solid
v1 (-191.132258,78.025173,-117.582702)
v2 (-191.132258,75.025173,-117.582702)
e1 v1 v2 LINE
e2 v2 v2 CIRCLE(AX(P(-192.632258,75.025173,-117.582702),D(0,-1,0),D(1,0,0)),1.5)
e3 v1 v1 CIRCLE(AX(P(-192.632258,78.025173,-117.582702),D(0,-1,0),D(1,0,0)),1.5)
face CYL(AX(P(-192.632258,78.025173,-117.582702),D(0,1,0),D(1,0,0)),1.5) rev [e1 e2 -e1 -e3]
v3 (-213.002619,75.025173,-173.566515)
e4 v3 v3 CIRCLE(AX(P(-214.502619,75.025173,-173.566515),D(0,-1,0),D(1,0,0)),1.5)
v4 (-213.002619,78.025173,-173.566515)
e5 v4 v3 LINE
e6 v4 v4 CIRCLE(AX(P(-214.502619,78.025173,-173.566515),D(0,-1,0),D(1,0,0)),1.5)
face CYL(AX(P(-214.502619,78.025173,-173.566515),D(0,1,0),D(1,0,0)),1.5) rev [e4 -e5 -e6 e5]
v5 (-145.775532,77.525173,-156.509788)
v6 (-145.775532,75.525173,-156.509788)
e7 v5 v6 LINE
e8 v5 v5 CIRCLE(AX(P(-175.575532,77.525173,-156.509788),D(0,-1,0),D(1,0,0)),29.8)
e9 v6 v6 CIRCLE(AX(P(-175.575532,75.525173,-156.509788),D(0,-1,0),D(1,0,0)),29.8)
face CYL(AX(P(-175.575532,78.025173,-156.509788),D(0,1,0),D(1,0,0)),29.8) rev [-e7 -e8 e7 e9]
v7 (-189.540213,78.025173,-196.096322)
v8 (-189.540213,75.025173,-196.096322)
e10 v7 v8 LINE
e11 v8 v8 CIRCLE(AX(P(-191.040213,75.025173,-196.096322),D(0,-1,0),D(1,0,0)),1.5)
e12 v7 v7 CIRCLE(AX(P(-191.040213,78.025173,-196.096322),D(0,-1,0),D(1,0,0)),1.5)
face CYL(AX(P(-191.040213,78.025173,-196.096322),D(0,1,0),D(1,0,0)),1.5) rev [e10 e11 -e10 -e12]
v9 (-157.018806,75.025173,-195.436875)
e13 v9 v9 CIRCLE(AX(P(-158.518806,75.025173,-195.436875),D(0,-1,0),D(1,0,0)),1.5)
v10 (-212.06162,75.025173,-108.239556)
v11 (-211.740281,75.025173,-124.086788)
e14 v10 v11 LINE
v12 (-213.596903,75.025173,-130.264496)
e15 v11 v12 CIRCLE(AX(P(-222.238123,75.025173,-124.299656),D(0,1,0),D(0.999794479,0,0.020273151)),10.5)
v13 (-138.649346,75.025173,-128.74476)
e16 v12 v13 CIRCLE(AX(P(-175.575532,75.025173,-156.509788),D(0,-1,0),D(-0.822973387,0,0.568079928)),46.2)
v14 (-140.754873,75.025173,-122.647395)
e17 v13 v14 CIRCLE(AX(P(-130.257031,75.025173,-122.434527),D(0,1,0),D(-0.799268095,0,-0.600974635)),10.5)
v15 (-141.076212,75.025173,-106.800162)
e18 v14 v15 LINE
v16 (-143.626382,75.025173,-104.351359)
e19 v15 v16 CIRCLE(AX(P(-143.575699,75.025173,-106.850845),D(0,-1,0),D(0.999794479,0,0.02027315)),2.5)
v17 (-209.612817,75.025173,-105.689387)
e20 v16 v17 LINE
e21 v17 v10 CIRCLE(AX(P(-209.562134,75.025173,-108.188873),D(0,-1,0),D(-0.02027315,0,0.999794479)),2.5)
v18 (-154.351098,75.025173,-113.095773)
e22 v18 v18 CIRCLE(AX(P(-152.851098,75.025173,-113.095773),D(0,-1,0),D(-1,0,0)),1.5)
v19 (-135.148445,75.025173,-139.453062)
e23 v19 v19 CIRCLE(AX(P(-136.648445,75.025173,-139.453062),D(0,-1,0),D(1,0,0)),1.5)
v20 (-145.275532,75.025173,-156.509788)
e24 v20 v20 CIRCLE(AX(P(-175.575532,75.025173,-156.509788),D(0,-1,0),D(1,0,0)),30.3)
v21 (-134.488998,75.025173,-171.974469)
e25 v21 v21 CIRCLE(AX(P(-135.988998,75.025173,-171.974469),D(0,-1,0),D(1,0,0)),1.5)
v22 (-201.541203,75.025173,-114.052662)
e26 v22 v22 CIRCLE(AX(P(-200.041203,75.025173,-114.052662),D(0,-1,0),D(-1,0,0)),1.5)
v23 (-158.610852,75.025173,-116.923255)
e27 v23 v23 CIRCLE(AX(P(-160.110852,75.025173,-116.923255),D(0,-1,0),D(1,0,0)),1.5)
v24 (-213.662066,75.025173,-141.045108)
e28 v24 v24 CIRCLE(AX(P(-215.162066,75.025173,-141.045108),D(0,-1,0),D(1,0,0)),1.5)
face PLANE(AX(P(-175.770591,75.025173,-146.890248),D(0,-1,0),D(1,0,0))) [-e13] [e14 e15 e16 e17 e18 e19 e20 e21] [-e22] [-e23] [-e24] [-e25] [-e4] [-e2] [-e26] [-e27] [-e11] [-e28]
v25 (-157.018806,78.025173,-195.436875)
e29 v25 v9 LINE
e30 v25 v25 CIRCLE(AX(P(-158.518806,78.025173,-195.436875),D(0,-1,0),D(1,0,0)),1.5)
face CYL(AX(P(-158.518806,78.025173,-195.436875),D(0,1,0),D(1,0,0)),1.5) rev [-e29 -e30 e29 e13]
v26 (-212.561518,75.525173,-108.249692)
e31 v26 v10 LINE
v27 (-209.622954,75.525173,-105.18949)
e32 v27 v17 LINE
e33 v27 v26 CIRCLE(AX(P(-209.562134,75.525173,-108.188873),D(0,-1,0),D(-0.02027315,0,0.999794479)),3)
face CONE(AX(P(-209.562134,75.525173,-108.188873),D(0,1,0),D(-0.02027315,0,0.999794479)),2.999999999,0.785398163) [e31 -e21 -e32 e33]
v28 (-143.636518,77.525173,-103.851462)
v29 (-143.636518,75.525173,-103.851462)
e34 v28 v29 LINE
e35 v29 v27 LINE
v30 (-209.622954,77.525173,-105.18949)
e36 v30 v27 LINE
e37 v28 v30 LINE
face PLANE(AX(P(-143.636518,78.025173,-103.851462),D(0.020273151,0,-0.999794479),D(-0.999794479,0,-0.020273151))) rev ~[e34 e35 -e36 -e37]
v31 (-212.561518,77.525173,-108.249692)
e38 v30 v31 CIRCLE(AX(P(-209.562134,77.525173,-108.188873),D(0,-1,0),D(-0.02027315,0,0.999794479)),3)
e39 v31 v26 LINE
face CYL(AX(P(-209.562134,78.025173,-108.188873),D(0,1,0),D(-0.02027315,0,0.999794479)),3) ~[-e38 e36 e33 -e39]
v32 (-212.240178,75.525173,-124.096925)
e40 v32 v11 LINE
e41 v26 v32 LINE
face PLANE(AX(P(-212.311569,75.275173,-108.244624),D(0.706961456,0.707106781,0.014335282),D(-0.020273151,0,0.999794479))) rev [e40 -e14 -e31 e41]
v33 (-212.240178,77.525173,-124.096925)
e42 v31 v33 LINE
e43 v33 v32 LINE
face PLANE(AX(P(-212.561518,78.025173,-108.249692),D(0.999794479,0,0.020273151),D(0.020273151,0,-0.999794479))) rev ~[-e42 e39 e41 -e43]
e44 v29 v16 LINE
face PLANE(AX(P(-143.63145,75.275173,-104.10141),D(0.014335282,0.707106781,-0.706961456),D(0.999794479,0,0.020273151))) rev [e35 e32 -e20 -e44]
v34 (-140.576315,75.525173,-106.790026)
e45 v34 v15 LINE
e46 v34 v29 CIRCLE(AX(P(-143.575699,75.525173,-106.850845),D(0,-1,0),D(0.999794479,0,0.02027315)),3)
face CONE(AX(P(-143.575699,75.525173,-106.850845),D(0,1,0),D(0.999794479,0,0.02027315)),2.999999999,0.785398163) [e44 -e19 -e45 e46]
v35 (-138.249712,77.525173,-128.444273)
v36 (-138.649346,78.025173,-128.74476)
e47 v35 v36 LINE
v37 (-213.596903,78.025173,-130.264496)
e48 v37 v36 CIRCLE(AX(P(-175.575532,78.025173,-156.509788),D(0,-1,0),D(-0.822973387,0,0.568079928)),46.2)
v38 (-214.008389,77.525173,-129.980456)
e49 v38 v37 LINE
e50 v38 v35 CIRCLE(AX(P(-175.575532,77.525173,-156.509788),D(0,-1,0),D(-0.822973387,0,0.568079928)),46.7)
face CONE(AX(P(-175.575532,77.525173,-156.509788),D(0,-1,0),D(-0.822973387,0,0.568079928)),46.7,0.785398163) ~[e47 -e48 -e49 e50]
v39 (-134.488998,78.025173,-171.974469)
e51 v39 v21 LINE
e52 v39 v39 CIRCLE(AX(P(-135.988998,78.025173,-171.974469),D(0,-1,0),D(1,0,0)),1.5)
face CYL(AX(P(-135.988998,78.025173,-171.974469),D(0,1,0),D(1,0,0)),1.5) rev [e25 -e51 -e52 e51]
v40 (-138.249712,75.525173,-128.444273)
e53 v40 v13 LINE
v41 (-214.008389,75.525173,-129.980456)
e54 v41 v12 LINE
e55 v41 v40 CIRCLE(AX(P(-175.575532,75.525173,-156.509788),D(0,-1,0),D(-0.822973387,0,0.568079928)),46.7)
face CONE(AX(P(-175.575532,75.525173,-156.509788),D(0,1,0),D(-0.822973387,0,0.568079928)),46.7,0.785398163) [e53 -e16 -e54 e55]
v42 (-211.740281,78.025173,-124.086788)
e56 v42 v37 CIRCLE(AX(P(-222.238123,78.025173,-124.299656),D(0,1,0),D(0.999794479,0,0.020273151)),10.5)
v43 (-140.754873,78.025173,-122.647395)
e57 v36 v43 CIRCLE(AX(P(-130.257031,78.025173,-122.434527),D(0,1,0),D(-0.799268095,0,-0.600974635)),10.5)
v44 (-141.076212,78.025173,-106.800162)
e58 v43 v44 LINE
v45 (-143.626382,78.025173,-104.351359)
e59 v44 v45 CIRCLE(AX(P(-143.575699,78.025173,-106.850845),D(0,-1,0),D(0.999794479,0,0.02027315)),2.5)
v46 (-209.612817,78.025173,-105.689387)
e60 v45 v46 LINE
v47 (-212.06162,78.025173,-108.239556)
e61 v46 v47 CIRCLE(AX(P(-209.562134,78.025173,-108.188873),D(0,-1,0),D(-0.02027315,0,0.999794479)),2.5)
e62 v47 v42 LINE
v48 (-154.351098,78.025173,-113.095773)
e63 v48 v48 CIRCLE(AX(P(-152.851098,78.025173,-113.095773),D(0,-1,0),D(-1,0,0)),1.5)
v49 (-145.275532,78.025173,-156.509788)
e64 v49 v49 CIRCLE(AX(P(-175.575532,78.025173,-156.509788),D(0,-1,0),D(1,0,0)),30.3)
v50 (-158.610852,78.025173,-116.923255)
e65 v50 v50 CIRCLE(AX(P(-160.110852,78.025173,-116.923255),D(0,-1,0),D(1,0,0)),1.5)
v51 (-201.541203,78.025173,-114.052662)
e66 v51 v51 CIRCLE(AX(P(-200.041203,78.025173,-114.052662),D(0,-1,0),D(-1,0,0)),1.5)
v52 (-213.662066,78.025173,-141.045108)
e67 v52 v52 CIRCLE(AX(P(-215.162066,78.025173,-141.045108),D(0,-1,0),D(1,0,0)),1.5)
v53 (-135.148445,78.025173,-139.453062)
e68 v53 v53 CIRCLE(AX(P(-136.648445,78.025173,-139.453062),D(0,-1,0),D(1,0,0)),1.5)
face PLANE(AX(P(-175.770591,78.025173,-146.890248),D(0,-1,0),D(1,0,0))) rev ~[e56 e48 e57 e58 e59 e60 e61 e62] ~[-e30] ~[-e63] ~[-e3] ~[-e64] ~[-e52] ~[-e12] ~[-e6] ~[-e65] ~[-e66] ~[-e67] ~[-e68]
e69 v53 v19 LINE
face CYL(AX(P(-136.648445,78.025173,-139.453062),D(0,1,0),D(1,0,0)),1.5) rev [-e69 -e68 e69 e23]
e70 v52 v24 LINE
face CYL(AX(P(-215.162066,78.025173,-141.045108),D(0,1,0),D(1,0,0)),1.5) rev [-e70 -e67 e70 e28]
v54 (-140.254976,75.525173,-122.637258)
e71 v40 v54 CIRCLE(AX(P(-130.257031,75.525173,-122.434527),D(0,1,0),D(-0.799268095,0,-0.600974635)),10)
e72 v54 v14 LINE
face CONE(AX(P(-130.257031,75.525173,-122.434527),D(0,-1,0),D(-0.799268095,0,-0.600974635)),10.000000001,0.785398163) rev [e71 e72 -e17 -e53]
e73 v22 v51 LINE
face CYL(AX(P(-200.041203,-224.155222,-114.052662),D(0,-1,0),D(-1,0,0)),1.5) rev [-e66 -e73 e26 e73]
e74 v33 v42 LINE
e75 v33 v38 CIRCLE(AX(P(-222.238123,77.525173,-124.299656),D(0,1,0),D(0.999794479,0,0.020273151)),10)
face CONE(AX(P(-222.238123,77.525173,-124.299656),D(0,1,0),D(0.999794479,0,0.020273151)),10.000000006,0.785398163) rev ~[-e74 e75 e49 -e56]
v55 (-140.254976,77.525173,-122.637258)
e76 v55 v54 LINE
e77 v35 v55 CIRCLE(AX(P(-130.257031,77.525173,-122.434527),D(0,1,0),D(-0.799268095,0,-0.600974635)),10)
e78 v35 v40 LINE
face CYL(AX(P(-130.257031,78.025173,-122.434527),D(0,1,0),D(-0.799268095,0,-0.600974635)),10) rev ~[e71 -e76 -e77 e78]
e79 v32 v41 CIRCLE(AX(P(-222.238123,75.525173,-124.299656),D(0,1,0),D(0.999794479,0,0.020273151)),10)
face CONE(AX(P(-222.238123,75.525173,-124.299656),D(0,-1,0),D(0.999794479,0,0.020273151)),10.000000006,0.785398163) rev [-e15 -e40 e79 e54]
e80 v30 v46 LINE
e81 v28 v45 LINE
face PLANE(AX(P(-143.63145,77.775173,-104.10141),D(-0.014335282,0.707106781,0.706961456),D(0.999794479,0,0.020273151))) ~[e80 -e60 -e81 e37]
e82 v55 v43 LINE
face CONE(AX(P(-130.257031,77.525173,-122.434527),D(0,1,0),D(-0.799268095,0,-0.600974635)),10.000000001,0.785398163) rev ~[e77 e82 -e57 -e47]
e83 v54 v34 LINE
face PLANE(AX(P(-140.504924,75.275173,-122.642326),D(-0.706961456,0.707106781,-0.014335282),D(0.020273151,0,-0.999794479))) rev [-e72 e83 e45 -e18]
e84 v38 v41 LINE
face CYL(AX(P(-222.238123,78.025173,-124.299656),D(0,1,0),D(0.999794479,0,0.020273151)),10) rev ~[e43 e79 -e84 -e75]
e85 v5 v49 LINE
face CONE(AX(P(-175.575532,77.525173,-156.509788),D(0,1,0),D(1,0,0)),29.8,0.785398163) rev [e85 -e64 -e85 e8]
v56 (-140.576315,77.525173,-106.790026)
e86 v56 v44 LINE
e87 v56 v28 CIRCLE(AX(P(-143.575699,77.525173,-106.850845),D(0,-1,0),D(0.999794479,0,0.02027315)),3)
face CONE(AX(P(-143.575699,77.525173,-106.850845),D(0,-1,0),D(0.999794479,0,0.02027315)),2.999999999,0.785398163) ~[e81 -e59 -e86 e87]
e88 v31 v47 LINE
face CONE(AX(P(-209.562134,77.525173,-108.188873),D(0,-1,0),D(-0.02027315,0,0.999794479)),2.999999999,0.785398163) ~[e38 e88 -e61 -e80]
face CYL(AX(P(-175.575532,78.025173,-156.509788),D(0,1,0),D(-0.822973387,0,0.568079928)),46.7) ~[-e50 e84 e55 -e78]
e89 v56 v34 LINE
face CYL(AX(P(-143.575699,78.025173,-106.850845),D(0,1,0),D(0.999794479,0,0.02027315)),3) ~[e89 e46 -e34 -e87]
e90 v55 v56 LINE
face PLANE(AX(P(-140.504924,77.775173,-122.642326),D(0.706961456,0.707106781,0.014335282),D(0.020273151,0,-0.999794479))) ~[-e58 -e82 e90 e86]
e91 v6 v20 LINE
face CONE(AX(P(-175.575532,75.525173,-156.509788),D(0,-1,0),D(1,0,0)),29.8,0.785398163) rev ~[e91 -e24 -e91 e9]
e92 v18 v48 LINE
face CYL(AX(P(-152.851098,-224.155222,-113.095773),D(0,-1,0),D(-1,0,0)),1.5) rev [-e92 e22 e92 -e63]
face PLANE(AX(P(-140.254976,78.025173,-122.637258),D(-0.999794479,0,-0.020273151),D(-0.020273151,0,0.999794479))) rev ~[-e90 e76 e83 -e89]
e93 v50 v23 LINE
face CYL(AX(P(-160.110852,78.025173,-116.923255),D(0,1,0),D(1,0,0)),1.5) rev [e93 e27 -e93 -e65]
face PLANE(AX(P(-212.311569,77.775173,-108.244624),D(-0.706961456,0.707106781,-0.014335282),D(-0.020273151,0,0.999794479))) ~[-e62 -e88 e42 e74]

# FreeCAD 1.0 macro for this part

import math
import FreeCAD as App
import Part
import Sketcher


def edges_at(feature, points):
    """Names of the edges that pass closest to the given points."""
    edges = feature.Shape.Edges
    near = lambda p: min(range(len(edges)), key=lambda i: edges[i].distToShape(Part.Vertex(*p))[0])
    return sorted({f"Edge{near(p) + 1}" for p in points})

doc = App.newDocument("Part")
body = doc.addObject("PartDesign::Body", "Body")

# Sketch on XZ plane
sketch1 = body.newObject("Sketcher::SketchObject", "Sketch")
sketch1.AttachmentSupport = (doc.getObject("XZ_Plane"), [""])
sketch1.MapMode = "FlatFace"
sketch1.AttachmentOffset = App.Placement(App.Vector(0, 0, -78.025173), App.Rotation())
sketch1.addGeometry([
    Part.LineSegment(App.Vector(-212.6, -108.2, 0), App.Vector(-212.2, -124.1, 0)),  # 0
    Part.ArcOfCircle(Part.Circle(App.Vector(-222.2, -124.3, 0), App.Vector(0, 0, 1), 10), math.radians(-35), math.radians(1)),  # 1
    Part.ArcOfCircle(Part.Circle(App.Vector(-175.6, -156.5, 0), App.Vector(0, 0, 1), 46.7), math.radians(145), math.radians(397)),  # 2
    Part.ArcOfCircle(Part.Circle(App.Vector(-130.3, -122.4, 0), App.Vector(0, 0, 1), 10), math.radians(-179), math.radians(-143)),  # 3
    Part.LineSegment(App.Vector(-140.3, -122.6, 0), App.Vector(-140.6, -106.8, 0)),  # 4
    Part.ArcOfCircle(Part.Circle(App.Vector(-143.6, -106.9, 0), App.Vector(0, 0, 1), 3), math.radians(1), math.radians(91)),  # 5
    Part.LineSegment(App.Vector(-143.6, -103.9, 0), App.Vector(-209.6, -105.2, 0)),  # 6
    Part.ArcOfCircle(Part.Circle(App.Vector(-209.6, -108.2, 0), App.Vector(0, 0, 1), 3), math.radians(91), math.radians(181)),  # 7
    Part.Circle(App.Vector(-191, -196.1, 0), App.Vector(0, 0, 1), 1.5),  # 8
    Part.Circle(App.Vector(-214.5, -173.6, 0), App.Vector(0, 0, 1), 1.5),  # 9
    Part.Circle(App.Vector(-158.5, -195.4, 0), App.Vector(0, 0, 1), 1.5),  # 10
    Part.Circle(App.Vector(-175.6, -156.5, 0), App.Vector(0, 0, 1), 29.8),  # 11
    Part.Circle(App.Vector(-136, -172, 0), App.Vector(0, 0, 1), 1.5),  # 12
    Part.Circle(App.Vector(-215.2, -141, 0), App.Vector(0, 0, 1), 1.5),  # 13
    Part.Circle(App.Vector(-192.6, -117.6, 0), App.Vector(0, 0, 1), 1.5),  # 14
    Part.Circle(App.Vector(-136.6, -139.5, 0), App.Vector(0, 0, 1), 1.5),  # 15
    Part.Circle(App.Vector(-160.1, -116.9, 0), App.Vector(0, 0, 1), 1.5),  # 16
], False)
sketch1.addConstraint([
    Sketcher.Constraint("Tangent", 0, 2, 1, 2),
    Sketcher.Constraint("Tangent", 1, 1, 2, 1),
    Sketcher.Constraint("Tangent", 2, 2, 3, 2),
    Sketcher.Constraint("Tangent", 3, 1, 4, 1),
    Sketcher.Constraint("Tangent", 4, 2, 5, 1),
    Sketcher.Constraint("Tangent", 5, 2, 6, 1),
    Sketcher.Constraint("Tangent", 6, 2, 7, 1),
    Sketcher.Constraint("Tangent", 7, 2, 0, 1),
    Sketcher.Constraint("Coincident", 11, 3, 2, 3),
    Sketcher.Constraint("Equal", 1, 3),
    Sketcher.Constraint("Equal", 5, 7),
    Sketcher.Constraint("Equal", 8, 9),
    Sketcher.Constraint("Equal", 9, 10),
    Sketcher.Constraint("Equal", 10, 12),
    Sketcher.Constraint("Equal", 12, 13),
    Sketcher.Constraint("Equal", 13, 14),
    Sketcher.Constraint("Equal", 14, 15),
    Sketcher.Constraint("Equal", 15, 16),
    Sketcher.Constraint("Parallel", 0, 4),
    Sketcher.Constraint("Perpendicular", 4, 6),
    Sketcher.Constraint("Equal", 0, 4),
    Sketcher.Constraint("Diameter", 8, 3.0),
    Sketcher.Constraint("Radius", 1, 10.0),
    Sketcher.Constraint("Radius", 5, 3.0),
    Sketcher.Constraint("Diameter", 11, 59.6),
    Sketcher.Constraint("Radius", 2, 46.7),
    Sketcher.Constraint("Distance", 6, 66.0),
    Sketcher.Constraint("DistanceX", 12, 3, -1, 1, 135.988998),
    Sketcher.Constraint("DistanceX", 5, 3, -1, 1, 143.575699),
    Sketcher.Constraint("DistanceY", 14, 3, -1, 1, 117.582702),
    Sketcher.Constraint("DistanceX", 2, 3, 3, 3, 45.318501),
    Sketcher.Constraint("DistanceY", 3, 3, 4, 2, 15.644501),
    Sketcher.Constraint("DistanceY", 2, 3, -1, 1, 156.509788),
    Sketcher.Constraint("DistanceX", 9, 3, -1, 1, 214.502619),
    Sketcher.Constraint("DistanceY", 12, 3, -1, 1, 171.974469),
    Sketcher.Constraint("DistanceX", 14, 3, -1, 1, 192.632258),
    Sketcher.Constraint("DistanceX", 16, 3, -1, 1, 160.110852),
    Sketcher.Constraint("DistanceX", 8, 3, 2, 3, 15.46468),
    Sketcher.Constraint("DistanceY", 8, 3, 7, 3, 87.907449),
    Sketcher.Constraint("DistanceY", 9, 3, 1, 3, 49.266858),
    Sketcher.Constraint("DistanceY", 10, 3, 9, 3, 21.870361),
    Sketcher.Constraint("DistanceY", 13, 3, 1, 3, 16.745452),
    Sketcher.Constraint("DistanceX", 13, 3, 7, 3, 5.599932),
    Sketcher.Constraint("DistanceY", 16, 3, 5, 3, 10.07241),
    Sketcher.Constraint("DistanceY", 15, 3, 2, 2, 11.008789),
    Sketcher.Constraint("DistanceX", 3, 1, 15, 3, 3.606531),
    Sketcher.Constraint("DistanceX", 10, 3, -1, 1, 158.518806),
])
pad1 = body.newObject("PartDesign::Pad", "Pad")
pad1.Profile = sketch1
pad1.Length = 3
doc.recompute()

chamfer = body.newObject("PartDesign::Chamfer", "Chamfer")
chamfer.Base = (pad1, edges_at(pad1, [
    (-212.401, 78.025, -116.173),
    (-211.726, 78.025, -106.111),
    (-176.63, 78.025, -104.52),
    (-141.498, 78.025, -104.687),
    (-211.726, 75.025, -106.111),
    (-212.401, 75.025, -116.173),
    (-212.661, 75.025, -127.178),
    (-174.629, 75.025, -203.2),
    (-205.376, 78.025, -156.51),
    (-205.376, 75.025, -156.51),
    (-139.709, 75.025, -125.699),
    (-140.416, 75.025, -114.714),
    (-141.498, 75.025, -104.687),
    (-140.416, 78.025, -114.714),
    (-176.63, 75.025, -104.52),
    (-139.709, 78.025, -125.699),
    (-174.629, 78.025, -203.2),
    (-212.661, 78.025, -127.178),
]))
chamfer.Size = 0.5

# Sketch on XZ plane
sketch2 = body.newObject("Sketcher::SketchObject", "Sketch001")
sketch2.AttachmentSupport = (doc.getObject("XZ_Plane"), [""])
sketch2.MapMode = "FlatFace"
sketch2.AttachmentOffset = App.Placement(App.Vector(0, 0, -78.025173), App.Rotation())
sketch2.addGeometry(Part.Circle(App.Vector(-200, -114.1, 0), App.Vector(0, 0, 1), 1.5), False)
sketch2.addConstraint([
    Sketcher.Constraint("Diameter", 0, 3.0),
    Sketcher.Constraint("DistanceY", 0, 3, -1, 1, 114.052662),
    Sketcher.Constraint("DistanceX", 0, 3, -1, 1, 200.041203),
])
pocket1 = body.newObject("PartDesign::Pocket", "Pocket")
pocket1.Profile = sketch2
pocket1.Type = "ThroughAll"
pocket1.Midplane = True

# Sketch on XZ plane
sketch3 = body.newObject("Sketcher::SketchObject", "Sketch002")
sketch3.AttachmentSupport = (doc.getObject("XZ_Plane"), [""])
sketch3.MapMode = "FlatFace"
sketch3.AttachmentOffset = App.Placement(App.Vector(0, 0, -78.025173), App.Rotation())
sketch3.addGeometry(Part.Circle(App.Vector(-152.9, -113.1, 0), App.Vector(0, 0, 1), 1.5), False)
sketch3.addConstraint([
    Sketcher.Constraint("Diameter", 0, 3.0),
    Sketcher.Constraint("DistanceX", 0, 3, -1, 1, 152.851098),
    Sketcher.Constraint("DistanceY", 0, 3, -1, 1, 113.095773),
])
pocket2 = body.newObject("PartDesign::Pocket", "Pocket001")
pocket2.Profile = sketch3
pocket2.Type = "ThroughAll"
pocket2.Midplane = True

doc.recompute()
